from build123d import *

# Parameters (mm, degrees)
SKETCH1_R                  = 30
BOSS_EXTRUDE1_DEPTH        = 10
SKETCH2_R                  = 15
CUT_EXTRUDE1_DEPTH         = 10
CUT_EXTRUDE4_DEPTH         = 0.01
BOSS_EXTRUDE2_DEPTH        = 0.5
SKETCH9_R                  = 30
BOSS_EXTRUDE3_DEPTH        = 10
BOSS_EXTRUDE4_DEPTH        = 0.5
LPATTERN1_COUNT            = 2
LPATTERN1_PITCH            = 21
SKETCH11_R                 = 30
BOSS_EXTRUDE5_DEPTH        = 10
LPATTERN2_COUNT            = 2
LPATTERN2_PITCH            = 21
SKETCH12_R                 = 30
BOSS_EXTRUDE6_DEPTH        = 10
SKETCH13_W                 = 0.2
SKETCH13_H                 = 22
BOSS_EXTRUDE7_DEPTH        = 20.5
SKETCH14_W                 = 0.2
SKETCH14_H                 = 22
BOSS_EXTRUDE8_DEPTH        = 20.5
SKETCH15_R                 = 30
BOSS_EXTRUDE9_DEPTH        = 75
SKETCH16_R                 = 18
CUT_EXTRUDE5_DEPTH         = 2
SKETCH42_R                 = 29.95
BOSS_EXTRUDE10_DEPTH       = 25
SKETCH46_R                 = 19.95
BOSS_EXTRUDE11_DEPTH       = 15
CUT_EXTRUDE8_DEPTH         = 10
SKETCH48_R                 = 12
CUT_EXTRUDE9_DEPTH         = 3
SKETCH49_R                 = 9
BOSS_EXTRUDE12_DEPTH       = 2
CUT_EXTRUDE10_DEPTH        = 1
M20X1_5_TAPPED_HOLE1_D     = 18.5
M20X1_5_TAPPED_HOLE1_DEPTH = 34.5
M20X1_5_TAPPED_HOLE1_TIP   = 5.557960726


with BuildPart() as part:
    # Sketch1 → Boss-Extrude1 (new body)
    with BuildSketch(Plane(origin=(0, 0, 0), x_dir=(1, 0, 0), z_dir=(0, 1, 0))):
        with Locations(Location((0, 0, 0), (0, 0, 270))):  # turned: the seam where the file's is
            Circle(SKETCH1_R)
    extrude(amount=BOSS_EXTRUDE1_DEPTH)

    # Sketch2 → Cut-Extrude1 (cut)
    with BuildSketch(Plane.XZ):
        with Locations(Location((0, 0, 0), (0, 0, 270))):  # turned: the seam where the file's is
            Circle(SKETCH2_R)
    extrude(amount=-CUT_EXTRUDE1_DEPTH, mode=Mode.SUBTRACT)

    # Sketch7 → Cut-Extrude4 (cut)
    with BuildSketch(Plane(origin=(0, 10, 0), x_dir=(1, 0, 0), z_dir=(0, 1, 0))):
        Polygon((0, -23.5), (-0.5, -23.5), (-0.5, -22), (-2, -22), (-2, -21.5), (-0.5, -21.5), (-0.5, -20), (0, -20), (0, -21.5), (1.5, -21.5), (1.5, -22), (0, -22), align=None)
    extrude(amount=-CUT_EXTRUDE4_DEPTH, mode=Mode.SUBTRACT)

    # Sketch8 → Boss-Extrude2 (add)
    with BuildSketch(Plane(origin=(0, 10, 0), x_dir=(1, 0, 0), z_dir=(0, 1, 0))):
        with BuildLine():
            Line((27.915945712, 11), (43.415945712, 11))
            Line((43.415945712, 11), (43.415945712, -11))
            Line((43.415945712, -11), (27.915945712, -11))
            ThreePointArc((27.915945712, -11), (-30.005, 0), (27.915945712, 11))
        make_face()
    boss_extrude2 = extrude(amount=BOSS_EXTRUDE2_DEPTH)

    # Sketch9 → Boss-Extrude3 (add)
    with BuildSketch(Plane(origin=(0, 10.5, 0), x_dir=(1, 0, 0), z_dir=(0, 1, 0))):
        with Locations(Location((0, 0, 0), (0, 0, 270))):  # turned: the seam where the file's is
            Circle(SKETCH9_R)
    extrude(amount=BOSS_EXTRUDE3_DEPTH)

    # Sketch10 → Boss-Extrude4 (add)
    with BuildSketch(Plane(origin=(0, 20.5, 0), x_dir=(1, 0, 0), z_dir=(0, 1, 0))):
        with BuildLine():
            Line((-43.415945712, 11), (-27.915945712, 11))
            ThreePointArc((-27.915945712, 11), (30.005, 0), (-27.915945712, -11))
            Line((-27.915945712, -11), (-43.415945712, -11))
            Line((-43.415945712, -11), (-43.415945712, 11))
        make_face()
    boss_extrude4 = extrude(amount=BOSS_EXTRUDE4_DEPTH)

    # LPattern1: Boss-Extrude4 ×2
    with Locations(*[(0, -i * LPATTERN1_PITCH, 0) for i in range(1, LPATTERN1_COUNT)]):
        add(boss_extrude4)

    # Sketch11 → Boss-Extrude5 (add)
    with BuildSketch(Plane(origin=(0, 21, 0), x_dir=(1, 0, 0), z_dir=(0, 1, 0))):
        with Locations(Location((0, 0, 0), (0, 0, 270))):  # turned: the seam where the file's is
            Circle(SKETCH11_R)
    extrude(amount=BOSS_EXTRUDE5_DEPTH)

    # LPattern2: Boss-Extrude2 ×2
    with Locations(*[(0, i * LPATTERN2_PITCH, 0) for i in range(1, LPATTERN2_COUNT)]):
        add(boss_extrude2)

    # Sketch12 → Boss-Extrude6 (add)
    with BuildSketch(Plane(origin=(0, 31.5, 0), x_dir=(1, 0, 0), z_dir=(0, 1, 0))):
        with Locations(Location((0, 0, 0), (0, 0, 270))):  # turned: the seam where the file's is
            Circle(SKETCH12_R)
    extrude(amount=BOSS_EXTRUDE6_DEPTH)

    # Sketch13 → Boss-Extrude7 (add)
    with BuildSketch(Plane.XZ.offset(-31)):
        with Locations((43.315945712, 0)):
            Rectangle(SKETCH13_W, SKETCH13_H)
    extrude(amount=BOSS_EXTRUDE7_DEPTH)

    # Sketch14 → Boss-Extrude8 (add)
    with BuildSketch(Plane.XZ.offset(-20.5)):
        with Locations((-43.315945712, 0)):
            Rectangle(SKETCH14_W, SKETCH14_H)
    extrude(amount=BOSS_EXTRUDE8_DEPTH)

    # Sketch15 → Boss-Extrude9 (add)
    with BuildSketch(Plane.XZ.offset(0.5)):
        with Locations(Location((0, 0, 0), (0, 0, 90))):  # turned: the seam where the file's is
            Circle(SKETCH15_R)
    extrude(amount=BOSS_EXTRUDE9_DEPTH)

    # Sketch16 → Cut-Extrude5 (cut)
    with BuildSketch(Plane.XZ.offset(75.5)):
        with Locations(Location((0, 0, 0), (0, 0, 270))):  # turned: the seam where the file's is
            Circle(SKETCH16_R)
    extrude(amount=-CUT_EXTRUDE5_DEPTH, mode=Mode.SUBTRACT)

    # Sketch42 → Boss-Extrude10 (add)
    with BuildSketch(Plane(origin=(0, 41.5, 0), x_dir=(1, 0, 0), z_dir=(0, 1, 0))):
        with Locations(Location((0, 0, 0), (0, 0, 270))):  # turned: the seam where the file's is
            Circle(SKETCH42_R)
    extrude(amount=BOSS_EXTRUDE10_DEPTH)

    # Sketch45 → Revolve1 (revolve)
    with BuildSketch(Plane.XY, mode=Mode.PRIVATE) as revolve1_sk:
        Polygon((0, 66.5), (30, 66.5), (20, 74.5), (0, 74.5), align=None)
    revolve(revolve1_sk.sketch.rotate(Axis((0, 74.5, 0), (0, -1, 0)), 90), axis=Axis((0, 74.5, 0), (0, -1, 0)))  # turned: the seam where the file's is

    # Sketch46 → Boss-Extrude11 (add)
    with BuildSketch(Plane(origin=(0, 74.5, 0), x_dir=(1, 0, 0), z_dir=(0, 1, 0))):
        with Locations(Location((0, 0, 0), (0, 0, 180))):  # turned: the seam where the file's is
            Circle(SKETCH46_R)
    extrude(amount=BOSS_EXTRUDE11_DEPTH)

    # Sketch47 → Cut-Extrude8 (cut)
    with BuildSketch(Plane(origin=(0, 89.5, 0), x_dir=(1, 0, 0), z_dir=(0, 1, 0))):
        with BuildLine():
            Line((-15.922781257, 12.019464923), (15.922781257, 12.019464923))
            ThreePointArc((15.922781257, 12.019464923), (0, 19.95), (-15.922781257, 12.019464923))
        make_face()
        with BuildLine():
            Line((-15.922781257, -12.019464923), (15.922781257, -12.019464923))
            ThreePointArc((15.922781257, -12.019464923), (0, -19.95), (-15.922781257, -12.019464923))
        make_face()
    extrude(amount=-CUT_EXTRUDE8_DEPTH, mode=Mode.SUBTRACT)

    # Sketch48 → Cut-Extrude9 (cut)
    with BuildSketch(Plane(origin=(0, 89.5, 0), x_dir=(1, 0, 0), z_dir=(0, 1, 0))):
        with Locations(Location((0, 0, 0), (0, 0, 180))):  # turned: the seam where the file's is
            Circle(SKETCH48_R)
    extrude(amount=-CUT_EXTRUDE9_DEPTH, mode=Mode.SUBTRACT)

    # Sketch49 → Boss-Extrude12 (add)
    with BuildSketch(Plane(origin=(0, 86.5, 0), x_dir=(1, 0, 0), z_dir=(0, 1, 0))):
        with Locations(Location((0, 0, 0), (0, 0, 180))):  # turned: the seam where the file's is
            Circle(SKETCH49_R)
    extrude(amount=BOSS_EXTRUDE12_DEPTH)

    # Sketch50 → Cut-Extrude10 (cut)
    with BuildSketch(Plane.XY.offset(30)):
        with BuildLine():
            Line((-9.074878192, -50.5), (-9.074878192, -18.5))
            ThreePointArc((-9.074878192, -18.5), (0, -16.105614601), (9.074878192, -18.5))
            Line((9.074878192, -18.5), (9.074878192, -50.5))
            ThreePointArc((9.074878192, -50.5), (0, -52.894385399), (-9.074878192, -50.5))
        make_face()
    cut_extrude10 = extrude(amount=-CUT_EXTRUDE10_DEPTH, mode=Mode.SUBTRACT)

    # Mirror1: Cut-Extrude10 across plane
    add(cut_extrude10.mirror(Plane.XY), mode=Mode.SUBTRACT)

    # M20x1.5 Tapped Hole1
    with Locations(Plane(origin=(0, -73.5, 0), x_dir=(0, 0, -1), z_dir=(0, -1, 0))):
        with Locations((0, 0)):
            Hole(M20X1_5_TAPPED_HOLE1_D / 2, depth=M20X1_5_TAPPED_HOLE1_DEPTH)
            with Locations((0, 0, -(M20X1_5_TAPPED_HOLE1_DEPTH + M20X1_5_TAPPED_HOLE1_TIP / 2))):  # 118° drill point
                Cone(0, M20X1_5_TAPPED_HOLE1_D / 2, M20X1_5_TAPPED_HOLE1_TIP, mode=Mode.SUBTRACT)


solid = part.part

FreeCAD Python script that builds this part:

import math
import FreeCAD as App
import Part
import Sketcher
from FreeCAD import Vector
Q = App.Units.Quantity

doc = App.newDocument("Part")
body = doc.addObject("PartDesign::Body", "Body")

# Sketch on XZ plane
sketch1 = body.newObject("Sketcher::SketchObject", "Sketch")
sketch1.AttachmentSupport = (doc.getObject("XZ_Plane"), [""])
sketch1.MapMode = "FlatFace"
sketch1.addGeometry(Part.Circle(Vector(0, 0, 0), Vector(0, 0, 1), 30), False)
sketch1.addConstraint([
    Sketcher.Constraint("Coincident", 0, 3, -1, 1),
    Sketcher.Constraint("Diameter", 0, Q("60 mm")),
])
pad1 = body.newObject("PartDesign::Pad", "Pad")
pad1.Profile = sketch1
pad1.Length = 10
pad1.Reversed = True

# Sketch on XZ plane
sketch2 = body.newObject("Sketcher::SketchObject", "Sketch001")
sketch2.AttachmentSupport = (doc.getObject("XZ_Plane"), [""])
sketch2.MapMode = "FlatFace"
sketch2.addGeometry(Part.Circle(Vector(0, 0, 0), Vector(0, 0, 1), 15), False)
sketch2.addConstraint([
    Sketcher.Constraint("Coincident", 0, 3, -1, 1),
    Sketcher.Constraint("Diameter", 0, Q("30 mm")),
])
pocket1 = body.newObject("PartDesign::Pocket", "Pocket")
pocket1.Profile = sketch2
pocket1.Length = 10

# Sketch on XZ plane
sketch3 = body.newObject("Sketcher::SketchObject", "Sketch002")
sketch3.AttachmentSupport = (doc.getObject("XZ_Plane"), [""])
sketch3.MapMode = "FlatFace"
sketch3.AttachmentOffset = App.Placement(Vector(0, 0, -10), App.Rotation())
sketch3.addGeometry([
    Part.LineSegment(Vector(-0.5, 23.5, 0), Vector(0, 23.5, 0)),  # 0
    Part.LineSegment(Vector(0, 23.5, 0), Vector(0, 22, 0)),  # 1
    Part.LineSegment(Vector(0, 22, 0), Vector(1.5, 22, 0)),  # 2
    Part.LineSegment(Vector(1.5, 22, 0), Vector(1.5, 21.5, 0)),  # 3
    Part.LineSegment(Vector(1.5, 21.5, 0), Vector(0, 21.5, 0)),  # 4
    Part.LineSegment(Vector(0, 21.5, 0), Vector(0, 20, 0)),  # 5
    Part.LineSegment(Vector(0, 20, 0), Vector(-0.5, 20, 0)),  # 6
    Part.LineSegment(Vector(-0.5, 20, 0), Vector(-0.5, 21.5, 0)),  # 7
    Part.LineSegment(Vector(-0.5, 21.5, 0), Vector(-2, 21.5, 0)),  # 8
    Part.LineSegment(Vector(-2, 21.5, 0), Vector(-2, 22, 0)),  # 9
    Part.LineSegment(Vector(-2, 22, 0), Vector(-0.5, 22, 0)),  # 10
    Part.LineSegment(Vector(-0.5, 22, 0), Vector(-0.5, 23.5, 0)),  # 11
], False)
sketch3.addConstraint([
    Sketcher.Constraint("Coincident", 0, 2, 1, 1),
    Sketcher.Constraint("Coincident", 1, 2, 2, 1),
    Sketcher.Constraint("Coincident", 2, 2, 3, 1),
    Sketcher.Constraint("Coincident", 3, 2, 4, 1),
    Sketcher.Constraint("Coincident", 4, 2, 5, 1),
    Sketcher.Constraint("Coincident", 5, 2, 6, 1),
    Sketcher.Constraint("Coincident", 6, 2, 7, 1),
    Sketcher.Constraint("Coincident", 7, 2, 8, 1),
    Sketcher.Constraint("Coincident", 8, 2, 9, 1),
    Sketcher.Constraint("Coincident", 9, 2, 10, 1),
    Sketcher.Constraint("Coincident", 10, 2, 11, 1),
    Sketcher.Constraint("Coincident", 11, 2, 0, 1),
    Sketcher.Constraint("Horizontal", 0),
    Sketcher.Constraint("Vertical", 1),
    Sketcher.Constraint("Horizontal", 2),
    Sketcher.Constraint("Vertical", 3),
    Sketcher.Constraint("Horizontal", 4),
    Sketcher.Constraint("Vertical", 5),
    Sketcher.Constraint("Horizontal", 6),
    Sketcher.Constraint("Vertical", 7),
    Sketcher.Constraint("Horizontal", 8),
    Sketcher.Constraint("Vertical", 9),
    Sketcher.Constraint("Horizontal", 10),
    Sketcher.Constraint("Vertical", 11),
    Sketcher.Constraint("PointOnObject", 0, 2, -2),
    Sketcher.Constraint("PointOnObject", 4, 2, -2),
    Sketcher.Constraint("Horizontal", 4, 2, 7, 2),
    Sketcher.Constraint("Horizontal", 2, 2, 9, 2),
    Sketcher.Constraint("Vertical", 7, 2, 10, 2),
    Sketcher.Constraint("Equal", 4, 8),
    Sketcher.Constraint("Equal", 10, 1),
    Sketcher.Constraint("Equal", 6, 3),
    Sketcher.Constraint("Equal", 1, 5),
    Sketcher.Constraint("DistanceX", 0, 1, 0, 2, Q("0.5 mm")),
    Sketcher.Constraint("DistanceX", 2, 1, 2, 2, Q("1.5 mm")),
    Sketcher.Constraint("DistanceY", -1, 1, 1, 2, Q("22 mm")),
])
pocket2 = body.newObject("PartDesign::Pocket", "Pocket001")
pocket2.Profile = sketch3
pocket2.Length = 0.01
pocket2.Reversed = True

# Sketch on XZ plane
sketch4 = body.newObject("Sketcher::SketchObject", "Sketch003")
sketch4.AttachmentSupport = (doc.getObject("XZ_Plane"), [""])
sketch4.MapMode = "FlatFace"
sketch4.AttachmentOffset = App.Placement(Vector(0, 0, -10), App.Rotation())
sketch4.addGeometry([
    Part.LineSegment(Vector(43, -11, 0), Vector(28, -11, 0)),
    Part.ArcOfCircle(Part.Circle(Vector(0, 0, 0), Vector(0, 0, 1), 30), math.radians(22), math.radians(338)),
    Part.LineSegment(Vector(28, 11, 0), Vector(43, 11, 0)),
    Part.LineSegment(Vector(43, 11, 0), Vector(43, -11, 0)),
], False)
sketch4.addConstraint([
    Sketcher.Constraint("Coincident", 0, 2, 1, 2),
    Sketcher.Constraint("Coincident", 1, 1, 2, 1),
    Sketcher.Constraint("Coincident", 2, 2, 3, 1),
    Sketcher.Constraint("Coincident", 3, 2, 0, 1),
    Sketcher.Constraint("Horizontal", 0),
    Sketcher.Constraint("Horizontal", 2),
    Sketcher.Constraint("Vertical", 3),
    Sketcher.Constraint("Coincident", 1, 3, -1, 1),
    Sketcher.Constraint("Vertical", 0, 2, 1, 1),
    Sketcher.Constraint("DistanceY", 3, 2, 3, 1, Q("22 mm")),
    Sketcher.Constraint("DistanceX", 0, 2, 0, 1, Q("15.5 mm")),
    Sketcher.Constraint("Radius", 1, Q("30.005 mm")),
])
pad2 = body.newObject("PartDesign::Pad", "Pad001")
pad2.Profile = sketch4
pad2.Length = 0.5
pad2.Reversed = True

# Sketch on XZ plane
sketch5 = body.newObject("Sketcher::SketchObject", "Sketch004")
sketch5.AttachmentSupport = (doc.getObject("XZ_Plane"), [""])
sketch5.MapMode = "FlatFace"
sketch5.AttachmentOffset = App.Placement(Vector(0, 0, -10.5), App.Rotation())
sketch5.addGeometry(Part.Circle(Vector(0, 0, 0), Vector(0, 0, 1), 30), False)
sketch5.addConstraint([
    Sketcher.Constraint("Coincident", 0, 3, -1, 1),
    Sketcher.Constraint("Diameter", 0, Q("60 mm")),
])
pad3 = body.newObject("PartDesign::Pad", "Pad002")
pad3.Profile = sketch5
pad3.Length = 10
pad3.Reversed = True

# Sketch on XZ plane
sketch6 = body.newObject("Sketcher::SketchObject", "Sketch005")
sketch6.AttachmentSupport = (doc.getObject("XZ_Plane"), [""])
sketch6.MapMode = "FlatFace"
sketch6.AttachmentOffset = App.Placement(Vector(0, 0, -20.5), App.Rotation())
sketch6.addGeometry([
    Part.LineSegment(Vector(-28, -11, 0), Vector(-43, -11, 0)),
    Part.LineSegment(Vector(-43, -11, 0), Vector(-43, 11, 0)),
    Part.LineSegment(Vector(-43, 11, 0), Vector(-28, 11, 0)),
    Part.ArcOfCircle(Part.Circle(Vector(0, 0, 0), Vector(0, 0, 1), 30), math.radians(-158), math.radians(158)),
], False)
sketch6.addConstraint([
    Sketcher.Constraint("Coincident", 0, 2, 1, 1),
    Sketcher.Constraint("Coincident", 1, 2, 2, 1),
    Sketcher.Constraint("Coincident", 2, 2, 3, 2),
    Sketcher.Constraint("Coincident", 3, 1, 0, 1),
    Sketcher.Constraint("Horizontal", 0),
    Sketcher.Constraint("Vertical", 1),
    Sketcher.Constraint("Horizontal", 2),
    Sketcher.Constraint("Coincident", 3, 3, -1, 1),
    Sketcher.Constraint("Vertical", 2, 2, 3, 1),
    Sketcher.Constraint("DistanceY", 1, 1, 1, 2, Q("22 mm")),
    Sketcher.Constraint("DistanceX", 0, 2, 0, 1, Q("15.5 mm")),
    Sketcher.Constraint("Radius", 3, Q("30.005 mm")),
])
pad4 = body.newObject("PartDesign::Pad", "Pad003")
pad4.Profile = sketch6
pad4.Length = 0.5
pad4.Reversed = True
doc.recompute()

linearpattern = body.newObject("PartDesign::LinearPattern", "LinearPattern")
linearpattern.Originals = [pad4]
linearpattern.Direction = (doc.getObject("Y_Axis"), [""])
linearpattern.Mode = "offset"
linearpattern.Offset = 21
linearpattern.Occurrences = 2
linearpattern.Reversed = True
body.Tip = linearpattern

# Sketch on XZ plane
sketch7 = body.newObject("Sketcher::SketchObject", "Sketch006")
sketch7.AttachmentSupport = (doc.getObject("XZ_Plane"), [""])
sketch7.MapMode = "FlatFace"
sketch7.AttachmentOffset = App.Placement(Vector(0, 0, -21), App.Rotation())
sketch7.addGeometry(Part.Circle(Vector(0, 0, 0), Vector(0, 0, 1), 30), False)
sketch7.addConstraint([
    Sketcher.Constraint("Coincident", 0, 3, -1, 1),
    Sketcher.Constraint("Diameter", 0, Q("60 mm")),
])
pad5 = body.newObject("PartDesign::Pad", "Pad004")
pad5.Profile = sketch7
pad5.Length = 10
pad5.Reversed = True
doc.recompute()

linearpattern2 = body.newObject("PartDesign::LinearPattern", "LinearPattern001")
linearpattern2.Originals = [pad2]
linearpattern2.Direction = (doc.getObject("Y_Axis"), [""])
linearpattern2.Mode = "offset"
linearpattern2.Offset = 21
linearpattern2.Occurrences = 2
body.Tip = linearpattern2

# Sketch on XZ plane
sketch8 = body.newObject("Sketcher::SketchObject", "Sketch007")
sketch8.AttachmentSupport = (doc.getObject("XZ_Plane"), [""])
sketch8.MapMode = "FlatFace"
sketch8.AttachmentOffset = App.Placement(Vector(0, 0, -31.5), App.Rotation())
sketch8.addGeometry(Part.Circle(Vector(0, 0, 0), Vector(0, 0, 1), 30), False)
sketch8.addConstraint([
    Sketcher.Constraint("Coincident", 0, 3, -1, 1),
    Sketcher.Constraint("Diameter", 0, Q("60 mm")),
])
pad6 = body.newObject("PartDesign::Pad", "Pad005")
pad6.Profile = sketch8
pad6.Length = 10
pad6.Reversed = True

# Sketch on XZ plane
sketch9 = body.newObject("Sketcher::SketchObject", "Sketch008")
sketch9.AttachmentSupport = (doc.getObject("XZ_Plane"), [""])
sketch9.MapMode = "FlatFace"
sketch9.AttachmentOffset = App.Placement(Vector(0, 0, -31), App.Rotation())
sketch9.addGeometry([
    Part.LineSegment(Vector(43.22, 11, 0), Vector(43.22, -11, 0)),
    Part.LineSegment(Vector(43.22, -11, 0), Vector(43.42, -11, 0)),
    Part.LineSegment(Vector(43.42, -11, 0), Vector(43.42, 11, 0)),
    Part.LineSegment(Vector(43.42, 11, 0), Vector(43.22, 11, 0)),
], False)
sketch9.addConstraint([
    Sketcher.Constraint("Coincident", 0, 2, 1, 1),
    Sketcher.Constraint("Coincident", 1, 2, 2, 1),
    Sketcher.Constraint("Coincident", 2, 2, 3, 1),
    Sketcher.Constraint("Coincident", 3, 2, 0, 1),
    Sketcher.Constraint("Vertical", 0),
    Sketcher.Constraint("Horizontal", 1),
    Sketcher.Constraint("Vertical", 2),
    Sketcher.Constraint("Horizontal", 3),
    Sketcher.Constraint("DistanceY", 0, 2, 0, 1, Q("22 mm")),
    Sketcher.Constraint("DistanceX", 1, 1, 1, 2, Q("0.2 mm")),
    Sketcher.Constraint("DistanceY", 0, 2, -1, 1, Q("11 mm")),
    Sketcher.Constraint("DistanceX", -1, 1, 0, 2, Q("43.215946 mm")),
])
pad7 = body.newObject("PartDesign::Pad", "Pad006")
pad7.Profile = sketch9
pad7.Length = 20.5

# Sketch on XZ plane
sketch10 = body.newObject("Sketcher::SketchObject", "Sketch009")
sketch10.AttachmentSupport = (doc.getObject("XZ_Plane"), [""])
sketch10.MapMode = "FlatFace"
sketch10.AttachmentOffset = App.Placement(Vector(0, 0, -20.5), App.Rotation())
sketch10.addGeometry([
    Part.LineSegment(Vector(-43.42, 11, 0), Vector(-43.42, -11, 0)),
    Part.LineSegment(Vector(-43.42, -11, 0), Vector(-43.22, -11, 0)),
    Part.LineSegment(Vector(-43.22, -11, 0), Vector(-43.22, 11, 0)),
    Part.LineSegment(Vector(-43.22, 11, 0), Vector(-43.42, 11, 0)),
], False)
sketch10.addConstraint([
    Sketcher.Constraint("Coincident", 0, 2, 1, 1),
    Sketcher.Constraint("Coincident", 1, 2, 2, 1),
    Sketcher.Constraint("Coincident", 2, 2, 3, 1),
    Sketcher.Constraint("Coincident", 3, 2, 0, 1),
    Sketcher.Constraint("Vertical", 0),
    Sketcher.Constraint("Horizontal", 1),
    Sketcher.Constraint("Vertical", 2),
    Sketcher.Constraint("Horizontal", 3),
    Sketcher.Constraint("DistanceY", 0, 2, 0, 1, Q("22 mm")),
    Sketcher.Constraint("DistanceX", 1, 1, 1, 2, Q("0.2 mm")),
    Sketcher.Constraint("DistanceY", 0, 2, -1, 1, Q("11 mm")),
    Sketcher.Constraint("DistanceX", 0, 2, -1, 1, Q("43.415946 mm")),
])
pad8 = body.newObject("PartDesign::Pad", "Pad007")
pad8.Profile = sketch10
pad8.Length = 20.5

# Sketch on XZ plane
sketch11 = body.newObject("Sketcher::SketchObject", "Sketch010")
sketch11.AttachmentSupport = (doc.getObject("XZ_Plane"), [""])
sketch11.MapMode = "FlatFace"
sketch11.AttachmentOffset = App.Placement(Vector(0, 0, 0.5), App.Rotation())
sketch11.addGeometry(Part.Circle(Vector(0, 0, 0), Vector(0, 0, 1), 30), False)
sketch11.addConstraint([
    Sketcher.Constraint("Coincident", 0, 3, -1, 1),
    Sketcher.Constraint("Diameter", 0, Q("60 mm")),
])
pad9 = body.newObject("PartDesign::Pad", "Pad008")
pad9.Profile = sketch11
pad9.Length = 75

# Sketch on XZ plane
sketch12 = body.newObject("Sketcher::SketchObject", "Sketch011")
sketch12.AttachmentSupport = (doc.getObject("XZ_Plane"), [""])
sketch12.MapMode = "FlatFace"
sketch12.AttachmentOffset = App.Placement(Vector(0, 0, 75.5), App.Rotation())
sketch12.addGeometry(Part.Circle(Vector(0, 0, 0), Vector(0, 0, 1), 18), False)
sketch12.addConstraint([
    Sketcher.Constraint("Coincident", 0, 3, -1, 1),
    Sketcher.Constraint("Diameter", 0, Q("36 mm")),
])
pocket3 = body.newObject("PartDesign::Pocket", "Pocket002")
pocket3.Profile = sketch12
pocket3.Length = 2

# Sketch on XZ plane
sketch13 = body.newObject("Sketcher::SketchObject", "Sketch012")
sketch13.AttachmentSupport = (doc.getObject("XZ_Plane"), [""])
sketch13.MapMode = "FlatFace"
sketch13.AttachmentOffset = App.Placement(Vector(0, 0, -41.5), App.Rotation())
sketch13.addGeometry(Part.Circle(Vector(0, 0, 0), Vector(0, 0, 1), 30), False)
sketch13.addConstraint([
    Sketcher.Constraint("Coincident", 0, 3, -1, 1),
    Sketcher.Constraint("Diameter", 0, Q("59.9 mm")),
])
pad10 = body.newObject("PartDesign::Pad", "Pad009")
pad10.Profile = sketch13
pad10.Length = 25
pad10.Reversed = True

# Sketch on XY plane
sketch14 = body.newObject("Sketcher::SketchObject", "Sketch013")
sketch14.AttachmentSupport = (doc.getObject("XY_Plane"), [""])
sketch14.MapMode = "FlatFace"
sketch14.addGeometry([
    Part.LineSegment(Vector(0, 66, 0), Vector(30, 66, 0)),
    Part.LineSegment(Vector(30, 66, 0), Vector(20, 74, 0)),
    Part.LineSegment(Vector(20, 74, 0), Vector(0, 74, 0)),
    Part.LineSegment(Vector(0, 74, 0), Vector(0, 66, 0)),
], False)
sketch14.addConstraint([
    Sketcher.Constraint("Coincident", 0, 2, 1, 1),
    Sketcher.Constraint("Coincident", 1, 2, 2, 1),
    Sketcher.Constraint("Coincident", 2, 2, 3, 1),
    Sketcher.Constraint("Coincident", 3, 2, 0, 1),
    Sketcher.Constraint("Horizontal", 0),
    Sketcher.Constraint("Horizontal", 2),
    Sketcher.Constraint("Vertical", 3),
    Sketcher.Constraint("PointOnObject", 2, 2, -2),
    Sketcher.Constraint("DistanceX", 0, 1, 0, 2, Q("30 mm")),
    Sketcher.Constraint("DistanceX", 2, 2, 2, 1, Q("20 mm")),
    Sketcher.Constraint("DistanceY", 3, 2, 3, 1, Q("8 mm")),
    Sketcher.Constraint("DistanceY", -1, 1, 0, 2, Q("66.5 mm")),
])
revolution = body.newObject("PartDesign::Revolution", "Revolution")
revolution.Profile = sketch14
revolution.ReferenceAxis = (sketch14, ["V_Axis"])
revolution.Angle = 360

# Sketch on XZ plane
sketch15 = body.newObject("Sketcher::SketchObject", "Sketch014")
sketch15.AttachmentSupport = (doc.getObject("XZ_Plane"), [""])
sketch15.MapMode = "FlatFace"
sketch15.AttachmentOffset = App.Placement(Vector(0, 0, -74.5), App.Rotation())
sketch15.addGeometry(Part.Circle(Vector(0, 0, 0), Vector(0, 0, 1), 20), False)
sketch15.addConstraint([
    Sketcher.Constraint("Coincident", 0, 3, -1, 1),
    Sketcher.Constraint("Diameter", 0, Q("39.9 mm")),
])
pad11 = body.newObject("PartDesign::Pad", "Pad010")
pad11.Profile = sketch15
pad11.Length = 15
pad11.Reversed = True

# Sketch on XZ plane
sketch16 = body.newObject("Sketcher::SketchObject", "Sketch015")
sketch16.AttachmentSupport = (doc.getObject("XZ_Plane"), [""])
sketch16.MapMode = "FlatFace"
sketch16.AttachmentOffset = App.Placement(Vector(0, 0, -89.5), App.Rotation())
sketch16.addGeometry([
    Part.LineSegment(Vector(-16, -12, 0), Vector(16, -12, 0)),
    Part.ArcOfCircle(Part.Circle(Vector(0, 0, 0), Vector(0, 0, 1), 20), math.radians(-143), math.radians(-37)),
    Part.LineSegment(Vector(16, 12, 0), Vector(-16, 12, 0)),
    Part.ArcOfCircle(Part.Circle(Vector(0, 0, 0), Vector(0, 0, 1), 20), math.radians(37), math.radians(143)),
], False)
sketch16.addConstraint([
    Sketcher.Constraint("Coincident", 0, 1, 1, 1),
    Sketcher.Constraint("Coincident", 1, 2, 0, 2),
    Sketcher.Constraint("Coincident", 2, 1, 3, 1),
    Sketcher.Constraint("Coincident", 3, 2, 2, 2),
    Sketcher.Constraint("Horizontal", 0),
    Sketcher.Constraint("Horizontal", 2),
    Sketcher.Constraint("Coincident", 1, 3, -1, 1),
    Sketcher.Constraint("Coincident", 3, 3, -1, 1),
    Sketcher.Constraint("Equal", 1, 3),
    Sketcher.Constraint("Vertical", 1, 2, 2, 1),
    Sketcher.Constraint("Radius", 1, Q("19.95 mm")),
    Sketcher.Constraint("DistanceX", 0, 1, 0, 2, Q("31.845563 mm")),
])
pocket4 = body.newObject("PartDesign::Pocket", "Pocket003")
pocket4.Profile = sketch16
pocket4.Length = 10
pocket4.Reversed = True

# Sketch on XZ plane
sketch17 = body.newObject("Sketcher::SketchObject", "Sketch016")
sketch17.AttachmentSupport = (doc.getObject("XZ_Plane"), [""])
sketch17.MapMode = "FlatFace"
sketch17.AttachmentOffset = App.Placement(Vector(0, 0, -89.5), App.Rotation())
sketch17.addGeometry(Part.Circle(Vector(0, 0, 0), Vector(0, 0, 1), 12), False)
sketch17.addConstraint([
    Sketcher.Constraint("Coincident", 0, 3, -1, 1),
    Sketcher.Constraint("Diameter", 0, Q("24 mm")),
])
pocket5 = body.newObject("PartDesign::Pocket", "Pocket004")
pocket5.Profile = sketch17
pocket5.Length = 3
pocket5.Reversed = True

# Sketch on XZ plane
sketch18 = body.newObject("Sketcher::SketchObject", "Sketch017")
sketch18.AttachmentSupport = (doc.getObject("XZ_Plane"), [""])
sketch18.MapMode = "FlatFace"
sketch18.AttachmentOffset = App.Placement(Vector(0, 0, -86.5), App.Rotation())
sketch18.addGeometry(Part.Circle(Vector(0, 0, 0), Vector(0, 0, 1), 9), False)
sketch18.addConstraint([
    Sketcher.Constraint("Coincident", 0, 3, -1, 1),
    Sketcher.Constraint("Diameter", 0, Q("18 mm")),
])
pad12 = body.newObject("PartDesign::Pad", "Pad011")
pad12.Profile = sketch18
pad12.Length = 2
pad12.Reversed = True

# Sketch on XY plane
sketch19 = body.newObject("Sketcher::SketchObject", "Sketch018")
sketch19.AttachmentSupport = (doc.getObject("XY_Plane"), [""])
sketch19.MapMode = "FlatFace"
sketch19.AttachmentOffset = App.Placement(Vector(0, 0, 30), App.Rotation())
sketch19.addGeometry([
    Part.LineSegment(Vector(-9, -18, 0), Vector(-9, -50, 0)),
    Part.ArcOfCircle(Part.Circle(Vector(0, -35, 0), Vector(0, 0, 1), 18), math.radians(-120), math.radians(-60)),
    Part.LineSegment(Vector(9, -50, 0), Vector(9, -18, 0)),
    Part.ArcOfCircle(Part.Circle(Vector(0, -34, 0), Vector(0, 0, 1), 18), math.radians(60), math.radians(120)),
], False)
sketch19.addConstraint([
    Sketcher.Constraint("Coincident", 0, 2, 1, 1),
    Sketcher.Constraint("Coincident", 1, 2, 2, 1),
    Sketcher.Constraint("Coincident", 2, 2, 3, 1),
    Sketcher.Constraint("Coincident", 3, 2, 0, 1),
    Sketcher.Constraint("Vertical", 0),
    Sketcher.Constraint("Vertical", 2),
    Sketcher.Constraint("Coincident", 3, 3, 1, 3),
    Sketcher.Constraint("Equal", 1, 3),
    Sketcher.Constraint("Symmetric", 0, 2, 1, 2, -2),
    Sketcher.Constraint("DistanceY", 0, 2, 0, 1, Q("32 mm")),
    Sketcher.Constraint("DistanceY", 1, 3, -1, 1, Q("34.5 mm")),
    Sketcher.Constraint("Radius", 1, Q("18.394385 mm")),
])
pocket6 = body.newObject("PartDesign::Pocket", "Pocket005")
pocket6.Profile = sketch19
pocket6.Length = 1
doc.recompute()

mirrored = body.newObject("PartDesign::Mirrored", "Mirrored")
mirrored.Originals = [pocket6]
mirrored.MirrorPlane = (doc.getObject("XY_Plane"), [""])
body.Tip = mirrored

# Sketch on XZ plane
sketch20 = body.newObject("Sketcher::SketchObject", "Sketch019")
sketch20.AttachmentSupport = (doc.getObject("XZ_Plane"), [""])
sketch20.MapMode = "FlatFace"
sketch20.AttachmentOffset = App.Placement(Vector(0, 0, 73.5), App.Rotation())
sketch20.addGeometry(Part.Circle(Vector(0, 0, 0), Vector(0, 0, 1), 9), False)
sketch20.addConstraint([
    Sketcher.Constraint("Coincident", 0, 3, -1, 1),
    Sketcher.Constraint("Diameter", 0, Q("18.5 mm")),
])
doc.recompute()
hole = body.newObject("PartDesign::Hole", "Hole")
hole.Profile = sketch20
hole.ThreadType = "None"
hole.Diameter = 18.5
hole.DepthType = "Dimension"
hole.Depth = 34.5
hole.DrillPoint = "Angled"
hole.DrillPointAngle = 118

doc.recompute()
